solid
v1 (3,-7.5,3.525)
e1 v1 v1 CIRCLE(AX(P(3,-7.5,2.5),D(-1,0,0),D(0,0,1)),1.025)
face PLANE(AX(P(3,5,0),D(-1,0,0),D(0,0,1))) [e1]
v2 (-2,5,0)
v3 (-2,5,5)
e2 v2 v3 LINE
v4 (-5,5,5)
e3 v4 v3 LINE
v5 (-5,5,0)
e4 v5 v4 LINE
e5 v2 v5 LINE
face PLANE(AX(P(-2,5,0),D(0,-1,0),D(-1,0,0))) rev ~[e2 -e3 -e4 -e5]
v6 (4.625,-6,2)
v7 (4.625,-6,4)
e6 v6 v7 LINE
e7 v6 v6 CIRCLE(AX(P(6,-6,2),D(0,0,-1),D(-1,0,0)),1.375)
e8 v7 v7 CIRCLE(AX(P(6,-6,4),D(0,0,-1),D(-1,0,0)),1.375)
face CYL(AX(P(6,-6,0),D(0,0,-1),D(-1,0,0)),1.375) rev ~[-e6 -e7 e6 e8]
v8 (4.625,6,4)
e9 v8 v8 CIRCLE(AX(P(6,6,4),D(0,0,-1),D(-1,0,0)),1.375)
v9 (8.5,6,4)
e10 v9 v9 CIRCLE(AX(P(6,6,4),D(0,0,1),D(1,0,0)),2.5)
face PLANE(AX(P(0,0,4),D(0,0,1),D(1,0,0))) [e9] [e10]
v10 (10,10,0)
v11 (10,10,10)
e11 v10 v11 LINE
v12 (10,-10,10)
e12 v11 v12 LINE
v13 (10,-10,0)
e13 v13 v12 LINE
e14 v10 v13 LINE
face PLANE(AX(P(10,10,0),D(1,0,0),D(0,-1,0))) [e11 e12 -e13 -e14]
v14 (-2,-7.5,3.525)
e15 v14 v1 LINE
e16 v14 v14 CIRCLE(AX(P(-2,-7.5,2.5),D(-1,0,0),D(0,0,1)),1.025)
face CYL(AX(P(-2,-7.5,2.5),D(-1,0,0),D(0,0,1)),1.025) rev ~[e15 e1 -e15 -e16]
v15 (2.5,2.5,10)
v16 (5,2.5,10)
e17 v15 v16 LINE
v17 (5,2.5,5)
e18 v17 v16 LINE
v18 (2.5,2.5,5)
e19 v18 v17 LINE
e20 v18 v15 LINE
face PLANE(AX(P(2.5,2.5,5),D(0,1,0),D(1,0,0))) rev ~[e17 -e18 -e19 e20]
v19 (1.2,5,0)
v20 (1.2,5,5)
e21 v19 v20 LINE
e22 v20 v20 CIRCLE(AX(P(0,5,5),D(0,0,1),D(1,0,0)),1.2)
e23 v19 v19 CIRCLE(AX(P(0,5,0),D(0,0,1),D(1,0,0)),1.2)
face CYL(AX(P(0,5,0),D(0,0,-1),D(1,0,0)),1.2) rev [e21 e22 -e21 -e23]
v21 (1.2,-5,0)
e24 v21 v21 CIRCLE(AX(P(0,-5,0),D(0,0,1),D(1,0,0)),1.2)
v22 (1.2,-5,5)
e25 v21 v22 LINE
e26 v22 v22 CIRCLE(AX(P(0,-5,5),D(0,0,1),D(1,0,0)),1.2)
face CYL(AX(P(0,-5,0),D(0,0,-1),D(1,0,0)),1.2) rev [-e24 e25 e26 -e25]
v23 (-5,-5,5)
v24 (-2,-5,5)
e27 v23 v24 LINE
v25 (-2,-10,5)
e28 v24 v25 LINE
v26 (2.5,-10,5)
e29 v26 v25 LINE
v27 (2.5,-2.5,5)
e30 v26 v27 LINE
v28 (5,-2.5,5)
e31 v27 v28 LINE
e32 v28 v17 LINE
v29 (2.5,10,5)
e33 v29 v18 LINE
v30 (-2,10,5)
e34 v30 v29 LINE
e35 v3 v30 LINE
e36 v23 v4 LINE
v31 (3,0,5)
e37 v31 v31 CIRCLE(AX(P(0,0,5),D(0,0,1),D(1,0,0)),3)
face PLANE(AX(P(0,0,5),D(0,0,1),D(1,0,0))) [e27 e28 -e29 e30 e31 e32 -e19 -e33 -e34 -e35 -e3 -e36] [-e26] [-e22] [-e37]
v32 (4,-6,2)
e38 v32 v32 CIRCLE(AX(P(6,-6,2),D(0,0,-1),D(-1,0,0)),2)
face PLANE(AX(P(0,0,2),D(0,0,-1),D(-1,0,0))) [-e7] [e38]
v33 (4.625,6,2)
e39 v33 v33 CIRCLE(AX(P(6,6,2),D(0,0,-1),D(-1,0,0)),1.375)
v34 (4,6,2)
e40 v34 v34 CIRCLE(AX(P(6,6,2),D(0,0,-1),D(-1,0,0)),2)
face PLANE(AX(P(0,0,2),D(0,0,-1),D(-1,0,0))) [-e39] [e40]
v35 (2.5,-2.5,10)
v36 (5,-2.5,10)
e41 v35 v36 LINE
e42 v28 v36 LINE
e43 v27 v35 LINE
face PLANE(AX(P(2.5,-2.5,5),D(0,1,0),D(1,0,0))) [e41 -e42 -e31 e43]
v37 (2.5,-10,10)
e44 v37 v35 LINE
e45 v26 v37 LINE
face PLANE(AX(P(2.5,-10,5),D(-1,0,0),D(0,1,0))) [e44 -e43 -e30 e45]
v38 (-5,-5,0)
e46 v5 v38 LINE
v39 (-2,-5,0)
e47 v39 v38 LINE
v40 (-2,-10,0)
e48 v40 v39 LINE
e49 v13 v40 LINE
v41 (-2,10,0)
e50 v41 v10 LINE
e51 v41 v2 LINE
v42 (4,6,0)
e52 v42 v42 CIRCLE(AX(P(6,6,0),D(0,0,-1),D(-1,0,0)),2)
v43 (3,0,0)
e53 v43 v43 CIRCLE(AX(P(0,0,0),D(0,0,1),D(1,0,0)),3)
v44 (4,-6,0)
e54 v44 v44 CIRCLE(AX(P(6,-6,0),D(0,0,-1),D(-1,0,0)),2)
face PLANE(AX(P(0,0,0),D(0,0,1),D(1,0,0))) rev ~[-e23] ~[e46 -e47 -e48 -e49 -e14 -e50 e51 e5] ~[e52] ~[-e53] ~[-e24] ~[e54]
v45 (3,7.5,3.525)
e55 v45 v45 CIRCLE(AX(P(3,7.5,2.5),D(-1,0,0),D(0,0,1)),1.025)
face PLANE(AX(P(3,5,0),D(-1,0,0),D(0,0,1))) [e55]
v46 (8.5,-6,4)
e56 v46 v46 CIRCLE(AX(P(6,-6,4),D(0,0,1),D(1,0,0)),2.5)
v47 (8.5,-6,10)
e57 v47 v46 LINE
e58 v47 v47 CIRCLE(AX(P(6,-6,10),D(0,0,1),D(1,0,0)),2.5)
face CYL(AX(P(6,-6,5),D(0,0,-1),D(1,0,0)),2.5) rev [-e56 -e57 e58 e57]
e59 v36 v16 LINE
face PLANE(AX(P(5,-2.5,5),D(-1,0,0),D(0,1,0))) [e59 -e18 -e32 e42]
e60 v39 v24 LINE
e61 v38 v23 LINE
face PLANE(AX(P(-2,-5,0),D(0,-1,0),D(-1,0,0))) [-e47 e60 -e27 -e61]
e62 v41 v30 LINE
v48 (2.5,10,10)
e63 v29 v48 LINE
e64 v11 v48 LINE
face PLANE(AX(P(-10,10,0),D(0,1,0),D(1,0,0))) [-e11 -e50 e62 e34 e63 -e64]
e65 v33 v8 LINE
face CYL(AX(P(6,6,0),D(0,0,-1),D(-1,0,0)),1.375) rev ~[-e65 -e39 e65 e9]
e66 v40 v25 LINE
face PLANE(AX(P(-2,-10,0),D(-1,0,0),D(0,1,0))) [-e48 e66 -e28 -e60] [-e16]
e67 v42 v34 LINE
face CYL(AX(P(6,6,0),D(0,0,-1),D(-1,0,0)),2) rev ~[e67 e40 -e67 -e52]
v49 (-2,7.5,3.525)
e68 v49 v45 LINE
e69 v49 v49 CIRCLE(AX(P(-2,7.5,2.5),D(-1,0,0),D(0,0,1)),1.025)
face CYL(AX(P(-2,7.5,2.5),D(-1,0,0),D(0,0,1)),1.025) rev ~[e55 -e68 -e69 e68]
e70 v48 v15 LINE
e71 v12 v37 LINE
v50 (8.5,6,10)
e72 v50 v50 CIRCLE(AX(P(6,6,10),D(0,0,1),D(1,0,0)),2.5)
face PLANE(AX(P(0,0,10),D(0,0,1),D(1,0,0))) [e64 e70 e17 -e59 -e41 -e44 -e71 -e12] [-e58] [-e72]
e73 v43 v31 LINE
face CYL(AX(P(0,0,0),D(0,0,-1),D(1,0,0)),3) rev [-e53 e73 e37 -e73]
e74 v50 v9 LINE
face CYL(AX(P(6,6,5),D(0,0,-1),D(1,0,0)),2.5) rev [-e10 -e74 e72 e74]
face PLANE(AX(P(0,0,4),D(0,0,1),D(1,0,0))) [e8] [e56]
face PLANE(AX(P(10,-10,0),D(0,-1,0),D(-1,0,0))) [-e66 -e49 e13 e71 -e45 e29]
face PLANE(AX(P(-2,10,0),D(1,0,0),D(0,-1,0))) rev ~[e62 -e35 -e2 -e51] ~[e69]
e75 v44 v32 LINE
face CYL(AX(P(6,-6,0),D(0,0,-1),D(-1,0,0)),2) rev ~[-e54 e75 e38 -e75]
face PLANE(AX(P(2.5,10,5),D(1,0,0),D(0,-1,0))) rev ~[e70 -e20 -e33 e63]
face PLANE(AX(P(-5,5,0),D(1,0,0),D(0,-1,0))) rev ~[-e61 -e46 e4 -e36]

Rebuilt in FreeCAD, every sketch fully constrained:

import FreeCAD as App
import Part
import Sketcher
from FreeCAD import Vector

doc = App.newDocument("Part")
body = doc.addObject("PartDesign::Body", "Body")

sketch1 = doc.addObject("Sketcher::SketchObject", "Sketch")
body.addObject(sketch1)
sketch1.AttachmentSupport = (doc.XY_Plane, [""])
sketch1.MapMode = "FlatFace"
sketch1.addGeometry([
    Part.LineSegment(Vector(-10, -10, 0), Vector(10, -10, 0)),
    Part.LineSegment(Vector(10, -10, 0), Vector(10, 10, 0)),
    Part.LineSegment(Vector(10, 10, 0), Vector(-10, 10, 0)),
    Part.LineSegment(Vector(-10, 10, 0), Vector(-10, -10, 0)),
    Part.Circle(Vector(0, -5, 0), Vector(0, 0, 1), 1.2),
    Part.Circle(Vector(0, 0, 0), Vector(0, 0, 1), 3),
    Part.Circle(Vector(0, 5, 0), Vector(0, 0, 1), 1.2),
], False)
sketch1.addConstraint([
    Sketcher.Constraint("Coincident", 0, 2, 1, 1),
    Sketcher.Constraint("Coincident", 1, 2, 2, 1),
    Sketcher.Constraint("Coincident", 2, 2, 3, 1),
    Sketcher.Constraint("Coincident", 3, 2, 0, 1),
    Sketcher.Constraint("Horizontal", 0),
    Sketcher.Constraint("Vertical", 1),
    Sketcher.Constraint("Horizontal", 2),
    Sketcher.Constraint("Vertical", 3),
    Sketcher.Constraint("Coincident", 5, 3, -1, 1),
    Sketcher.Constraint("Equal", 4, 6),
    Sketcher.Constraint("Symmetric", 4, 3, 6, 3, -1, 1),
    Sketcher.Constraint("Symmetric", 0, 2, 2, 2, -1, 1),
    Sketcher.Constraint("PointOnObject", 4, 3, -2),
    Sketcher.Constraint("Equal", 2, 1),
    Sketcher.Constraint("Diameter", 5, 6.0),
    Sketcher.Constraint("Diameter", 4, 2.4),
    Sketcher.Constraint("DistanceY", 4, 3, -1, 1, 5.0),
    Sketcher.Constraint("DistanceX", -1, 1, 0, 2, 10.0),
])
pad1 = doc.addObject("PartDesign::Pad", "Pad")
body.addObject(pad1)
pad1.Profile = sketch1
pad1.Length = 5

sketch2 = doc.addObject("Sketcher::SketchObject", "Sketch001")
body.addObject(sketch2)
sketch2.AttachmentSupport = (doc.XY_Plane, [""])
sketch2.MapMode = "FlatFace"
sketch2.AttachmentOffset = App.Placement(Vector(0, 0, 5), App.Rotation())
sketch2.addGeometry([
    Part.Circle(Vector(6, -6, 0), Vector(0, 0, 1), 2.5),
    Part.Circle(Vector(6, 6, 0), Vector(0, 0, 1), 2.5),
], False)
sketch2.addConstraint([
    Sketcher.Constraint("Equal", 0, 1),
    Sketcher.Constraint("Symmetric", 0, 3, 1, 3, -1),
    Sketcher.Constraint("Diameter", 0, 5.0),
    Sketcher.Constraint("DistanceX", -1, 1, 0, 3, 6.0),
    Sketcher.Constraint("DistanceY", 0, 3, -1, 1, 6.0),
])
pocket1 = doc.addObject("PartDesign::Pocket", "Pocket")
body.addObject(pocket1)
pocket1.Profile = sketch2
pocket1.Length = 1

sketch3 = doc.addObject("Sketcher::SketchObject", "Sketch002")
body.addObject(sketch3)
sketch3.AttachmentSupport = (doc.XY_Plane, [""])
sketch3.MapMode = "FlatFace"
sketch3.addGeometry([
    Part.Circle(Vector(6, 6, 0), Vector(0, 0, 1), 1.4),
    Part.Circle(Vector(6, -6, 0), Vector(0, 0, 1), 1.4),
], False)
sketch3.addConstraint([
    Sketcher.Constraint("Equal", 0, 1),
    Sketcher.Constraint("Symmetric", 0, 3, 1, 3, -1),
    Sketcher.Constraint("Diameter", 0, 2.75),
    Sketcher.Constraint("DistanceX", -1, 1, 0, 3, 6.0),
    Sketcher.Constraint("DistanceY", -1, 1, 0, 3, 6.0),
])
pocket2 = doc.addObject("PartDesign::Pocket", "Pocket001")
body.addObject(pocket2)
pocket2.Profile = sketch3
pocket2.Length = 5
pocket2.Reversed = True

sketch4 = doc.addObject("Sketcher::SketchObject", "Sketch003")
body.addObject(sketch4)
sketch4.AttachmentSupport = (doc.XY_Plane, [""])
sketch4.MapMode = "FlatFace"
sketch4.AttachmentOffset = App.Placement(Vector(0, 0, 5), App.Rotation())
sketch4.addGeometry([
    Part.LineSegment(Vector(10, 10, 0), Vector(2.5, 10, 0)),
    Part.LineSegment(Vector(2.5, 10, 0), Vector(2.5, 2.5, 0)),
    Part.LineSegment(Vector(2.5, 2.5, 0), Vector(5, 2.5, 0)),
    Part.LineSegment(Vector(5, 2.5, 0), Vector(5, -2.5, 0)),
    Part.LineSegment(Vector(5, -2.5, 0), Vector(2.5, -2.5, 0)),
    Part.LineSegment(Vector(2.5, -2.5, 0), Vector(2.5, -10, 0)),
    Part.LineSegment(Vector(2.5, -10, 0), Vector(10, -10, 0)),
    Part.LineSegment(Vector(10, -10, 0), Vector(10, 10, 0)),
    Part.Circle(Vector(6, 6, 0), Vector(0, 0, 1), 2.5),
    Part.Circle(Vector(6, -6, 0), Vector(0, 0, 1), 2.5),
], False)
sketch4.addConstraint([
    Sketcher.Constraint("Coincident", 0, 2, 1, 1),
    Sketcher.Constraint("Coincident", 1, 2, 2, 1),
    Sketcher.Constraint("Coincident", 2, 2, 3, 1),
    Sketcher.Constraint("Coincident", 3, 2, 4, 1),
    Sketcher.Constraint("Coincident", 4, 2, 5, 1),
    Sketcher.Constraint("Coincident", 5, 2, 6, 1),
    Sketcher.Constraint("Coincident", 6, 2, 7, 1),
    Sketcher.Constraint("Coincident", 7, 2, 0, 1),
    Sketcher.Constraint("Horizontal", 0),
    Sketcher.Constraint("Vertical", 1),
    Sketcher.Constraint("Horizontal", 2),
    Sketcher.Constraint("Vertical", 3),
    Sketcher.Constraint("Horizontal", 4),
    Sketcher.Constraint("Vertical", 5),
    Sketcher.Constraint("Horizontal", 6),
    Sketcher.Constraint("Vertical", 7),
    Sketcher.Constraint("Equal", 8, 9),
    Sketcher.Constraint("Symmetric", 8, 3, 9, 3, -1),
    Sketcher.Constraint("Symmetric", 1, 2, 4, 2, -1),
    Sketcher.Constraint("Equal", 6, 1),
    Sketcher.Constraint("Equal", 1, 5),
    Sketcher.Constraint("Diameter", 8, 5.0),
    Sketcher.Constraint("DistanceY", 3, 2, 3, 1, 5.0),
    Sketcher.Constraint("DistanceX", 0, 2, 0, 1, 7.5),
    Sketcher.Constraint("DistanceX", -1, 1, 2, 2, 5.0),
    Sketcher.Constraint("DistanceX", 3, 2, 6, 2, 5.0),
    Sketcher.Constraint("DistanceX", -1, 1, 8, 3, 6.0),
    Sketcher.Constraint("DistanceY", -1, 1, 8, 3, 6.0),
])
pad2 = doc.addObject("PartDesign::Pad", "Pad001")
body.addObject(pad2)
pad2.Profile = sketch4
pad2.Length = 5

sketch5 = doc.addObject("Sketcher::SketchObject", "Sketch004")
body.addObject(sketch5)
sketch5.AttachmentSupport = (doc.XY_Plane, [""])
sketch5.MapMode = "FlatFace"
sketch5.addGeometry([
    Part.Circle(Vector(6, 6, 0), Vector(0, 0, 1), 2),
    Part.Circle(Vector(6, -6, 0), Vector(0, 0, 1), 2),
], False)
sketch5.addConstraint([
    Sketcher.Constraint("Equal", 0, 1),
    Sketcher.Constraint("Symmetric", 0, 3, 1, 3, -1),
    Sketcher.Constraint("Diameter", 0, 4.0),
    Sketcher.Constraint("DistanceX", -1, 1, 0, 3, 6.0),
    Sketcher.Constraint("DistanceY", -1, 1, 0, 3, 6.0),
])
pocket3 = doc.addObject("PartDesign::Pocket", "Pocket002")
body.addObject(pocket3)
pocket3.Profile = sketch5
pocket3.Length = 2
pocket3.Reversed = True

sketch6 = doc.addObject("Sketcher::SketchObject", "Sketch005")
body.addObject(sketch6)
sketch6.AttachmentSupport = (doc.XY_Plane, [""])
sketch6.MapMode = "FlatFace"
sketch6.addGeometry([
    Part.LineSegment(Vector(-2, 10, 0), Vector(-2, 5, 0)),
    Part.LineSegment(Vector(-2, 5, 0), Vector(-5, 5, 0)),
    Part.LineSegment(Vector(-5, 5, 0), Vector(-5, -5, 0)),
    Part.LineSegment(Vector(-5, -5, 0), Vector(-2, -5, 0)),
    Part.LineSegment(Vector(-2, -5, 0), Vector(-2, -10, 0)),
    Part.LineSegment(Vector(-2, -10, 0), Vector(-10, -10, 0)),
    Part.LineSegment(Vector(-10, -10, 0), Vector(-10, 10, 0)),
    Part.LineSegment(Vector(-10, 10, 0), Vector(-2, 10, 0)),
], False)
sketch6.addConstraint([
    Sketcher.Constraint("Coincident", 0, 2, 1, 1),
    Sketcher.Constraint("Coincident", 1, 2, 2, 1),
    Sketcher.Constraint("Coincident", 2, 2, 3, 1),
    Sketcher.Constraint("Coincident", 3, 2, 4, 1),
    Sketcher.Constraint("Coincident", 4, 2, 5, 1),
    Sketcher.Constraint("Coincident", 5, 2, 6, 1),
    Sketcher.Constraint("Coincident", 6, 2, 7, 1),
    Sketcher.Constraint("Coincident", 7, 2, 0, 1),
    Sketcher.Constraint("Vertical", 0),
    Sketcher.Constraint("Horizontal", 1),
    Sketcher.Constraint("Vertical", 2),
    Sketcher.Constraint("Horizontal", 3),
    Sketcher.Constraint("Vertical", 4),
    Sketcher.Constraint("Horizontal", 5),
    Sketcher.Constraint("Vertical", 6),
    Sketcher.Constraint("Horizontal", 7),
    Sketcher.Constraint("Symmetric", 0, 2, 3, 2, -1),
    Sketcher.Constraint("Equal", 0, 4),
    Sketcher.Constraint("DistanceX", 1, 2, 1, 1, 3.0),
    Sketcher.Constraint("DistanceY", 0, 2, 0, 1, 5.0),
    Sketcher.Constraint("DistanceY", -1, 1, 0, 2, 5.0),
    Sketcher.Constraint("DistanceX", 1, 2, -1, 1, 5.0),
    Sketcher.Constraint("DistanceX", 5, 2, 2, 2, 5.0),
])
pocket4 = doc.addObject("PartDesign::Pocket", "Pocket003")
body.addObject(pocket4)
pocket4.Profile = sketch6
pocket4.Length = 10
pocket4.Reversed = True

sketch7 = doc.addObject("Sketcher::SketchObject", "Sketch006")
body.addObject(sketch7)
sketch7.AttachmentSupport = (doc.YZ_Plane, [""])
sketch7.MapMode = "FlatFace"
sketch7.AttachmentOffset = App.Placement(Vector(0, 0, -2), App.Rotation())
sketch7.addGeometry([
    Part.Circle(Vector(7.5, 2.5, 0), Vector(0, 0, 1), 1),
    Part.Circle(Vector(-7.5, 2.5, 0), Vector(0, 0, 1), 1),
], False)
sketch7.addConstraint([
    Sketcher.Constraint("Equal", 0, 1),
    Sketcher.Constraint("Symmetric", 0, 3, 1, 3, -2),
    Sketcher.Constraint("Diameter", 0, 2.05),
    Sketcher.Constraint("DistanceY", -1, 1, 0, 3, 2.5),
    Sketcher.Constraint("DistanceX", 1, 3, 0, 3, 15.0),
])
pocket5 = doc.addObject("PartDesign::Pocket", "Pocket004")
body.addObject(pocket5)
pocket5.Profile = sketch7
pocket5.Length = 5
pocket5.Reversed = True

doc.recompute()
